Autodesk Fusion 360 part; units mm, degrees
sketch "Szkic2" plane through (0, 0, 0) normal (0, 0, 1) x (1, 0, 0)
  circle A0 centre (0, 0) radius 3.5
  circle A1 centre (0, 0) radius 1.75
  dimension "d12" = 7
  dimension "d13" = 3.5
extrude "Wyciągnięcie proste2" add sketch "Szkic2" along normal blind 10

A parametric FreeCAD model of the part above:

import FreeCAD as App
import Part
import Sketcher

V = App.Vector
Q = App.Units.Quantity

doc = App.newDocument("Part")
body = doc.addObject("PartDesign::Body", "Body")

# Sketch on XY plane
sketch1 = body.newObject("Sketcher::SketchObject", "Sketch")
sketch1.AttachmentSupport = (doc.getObject("XY_Plane"), [""])
sketch1.MapMode = "FlatFace"
sketch1.addGeometry(Part.Circle(V(0, 0, 0), V(0, 0, 1), 3.5), False)
sketch1.addGeometry(Part.Circle(V(0, 0, 0), V(0, 0, 1), 1.75), False)
sketch1.addConstraint(Sketcher.Constraint("Coincident", 0, 3, -1, 1))
sketch1.addConstraint(Sketcher.Constraint("Coincident", 1, 3, -1, 1))
sketch1.addConstraint(Sketcher.Constraint("Diameter", 0, Q("7 mm")))
sketch1.addConstraint(Sketcher.Constraint("Diameter", 1, Q("3.5 mm")))
pad1 = body.newObject("PartDesign::Pad", "Pad")
pad1.Profile = sketch1
pad1.Length = 10

doc.recompute()
